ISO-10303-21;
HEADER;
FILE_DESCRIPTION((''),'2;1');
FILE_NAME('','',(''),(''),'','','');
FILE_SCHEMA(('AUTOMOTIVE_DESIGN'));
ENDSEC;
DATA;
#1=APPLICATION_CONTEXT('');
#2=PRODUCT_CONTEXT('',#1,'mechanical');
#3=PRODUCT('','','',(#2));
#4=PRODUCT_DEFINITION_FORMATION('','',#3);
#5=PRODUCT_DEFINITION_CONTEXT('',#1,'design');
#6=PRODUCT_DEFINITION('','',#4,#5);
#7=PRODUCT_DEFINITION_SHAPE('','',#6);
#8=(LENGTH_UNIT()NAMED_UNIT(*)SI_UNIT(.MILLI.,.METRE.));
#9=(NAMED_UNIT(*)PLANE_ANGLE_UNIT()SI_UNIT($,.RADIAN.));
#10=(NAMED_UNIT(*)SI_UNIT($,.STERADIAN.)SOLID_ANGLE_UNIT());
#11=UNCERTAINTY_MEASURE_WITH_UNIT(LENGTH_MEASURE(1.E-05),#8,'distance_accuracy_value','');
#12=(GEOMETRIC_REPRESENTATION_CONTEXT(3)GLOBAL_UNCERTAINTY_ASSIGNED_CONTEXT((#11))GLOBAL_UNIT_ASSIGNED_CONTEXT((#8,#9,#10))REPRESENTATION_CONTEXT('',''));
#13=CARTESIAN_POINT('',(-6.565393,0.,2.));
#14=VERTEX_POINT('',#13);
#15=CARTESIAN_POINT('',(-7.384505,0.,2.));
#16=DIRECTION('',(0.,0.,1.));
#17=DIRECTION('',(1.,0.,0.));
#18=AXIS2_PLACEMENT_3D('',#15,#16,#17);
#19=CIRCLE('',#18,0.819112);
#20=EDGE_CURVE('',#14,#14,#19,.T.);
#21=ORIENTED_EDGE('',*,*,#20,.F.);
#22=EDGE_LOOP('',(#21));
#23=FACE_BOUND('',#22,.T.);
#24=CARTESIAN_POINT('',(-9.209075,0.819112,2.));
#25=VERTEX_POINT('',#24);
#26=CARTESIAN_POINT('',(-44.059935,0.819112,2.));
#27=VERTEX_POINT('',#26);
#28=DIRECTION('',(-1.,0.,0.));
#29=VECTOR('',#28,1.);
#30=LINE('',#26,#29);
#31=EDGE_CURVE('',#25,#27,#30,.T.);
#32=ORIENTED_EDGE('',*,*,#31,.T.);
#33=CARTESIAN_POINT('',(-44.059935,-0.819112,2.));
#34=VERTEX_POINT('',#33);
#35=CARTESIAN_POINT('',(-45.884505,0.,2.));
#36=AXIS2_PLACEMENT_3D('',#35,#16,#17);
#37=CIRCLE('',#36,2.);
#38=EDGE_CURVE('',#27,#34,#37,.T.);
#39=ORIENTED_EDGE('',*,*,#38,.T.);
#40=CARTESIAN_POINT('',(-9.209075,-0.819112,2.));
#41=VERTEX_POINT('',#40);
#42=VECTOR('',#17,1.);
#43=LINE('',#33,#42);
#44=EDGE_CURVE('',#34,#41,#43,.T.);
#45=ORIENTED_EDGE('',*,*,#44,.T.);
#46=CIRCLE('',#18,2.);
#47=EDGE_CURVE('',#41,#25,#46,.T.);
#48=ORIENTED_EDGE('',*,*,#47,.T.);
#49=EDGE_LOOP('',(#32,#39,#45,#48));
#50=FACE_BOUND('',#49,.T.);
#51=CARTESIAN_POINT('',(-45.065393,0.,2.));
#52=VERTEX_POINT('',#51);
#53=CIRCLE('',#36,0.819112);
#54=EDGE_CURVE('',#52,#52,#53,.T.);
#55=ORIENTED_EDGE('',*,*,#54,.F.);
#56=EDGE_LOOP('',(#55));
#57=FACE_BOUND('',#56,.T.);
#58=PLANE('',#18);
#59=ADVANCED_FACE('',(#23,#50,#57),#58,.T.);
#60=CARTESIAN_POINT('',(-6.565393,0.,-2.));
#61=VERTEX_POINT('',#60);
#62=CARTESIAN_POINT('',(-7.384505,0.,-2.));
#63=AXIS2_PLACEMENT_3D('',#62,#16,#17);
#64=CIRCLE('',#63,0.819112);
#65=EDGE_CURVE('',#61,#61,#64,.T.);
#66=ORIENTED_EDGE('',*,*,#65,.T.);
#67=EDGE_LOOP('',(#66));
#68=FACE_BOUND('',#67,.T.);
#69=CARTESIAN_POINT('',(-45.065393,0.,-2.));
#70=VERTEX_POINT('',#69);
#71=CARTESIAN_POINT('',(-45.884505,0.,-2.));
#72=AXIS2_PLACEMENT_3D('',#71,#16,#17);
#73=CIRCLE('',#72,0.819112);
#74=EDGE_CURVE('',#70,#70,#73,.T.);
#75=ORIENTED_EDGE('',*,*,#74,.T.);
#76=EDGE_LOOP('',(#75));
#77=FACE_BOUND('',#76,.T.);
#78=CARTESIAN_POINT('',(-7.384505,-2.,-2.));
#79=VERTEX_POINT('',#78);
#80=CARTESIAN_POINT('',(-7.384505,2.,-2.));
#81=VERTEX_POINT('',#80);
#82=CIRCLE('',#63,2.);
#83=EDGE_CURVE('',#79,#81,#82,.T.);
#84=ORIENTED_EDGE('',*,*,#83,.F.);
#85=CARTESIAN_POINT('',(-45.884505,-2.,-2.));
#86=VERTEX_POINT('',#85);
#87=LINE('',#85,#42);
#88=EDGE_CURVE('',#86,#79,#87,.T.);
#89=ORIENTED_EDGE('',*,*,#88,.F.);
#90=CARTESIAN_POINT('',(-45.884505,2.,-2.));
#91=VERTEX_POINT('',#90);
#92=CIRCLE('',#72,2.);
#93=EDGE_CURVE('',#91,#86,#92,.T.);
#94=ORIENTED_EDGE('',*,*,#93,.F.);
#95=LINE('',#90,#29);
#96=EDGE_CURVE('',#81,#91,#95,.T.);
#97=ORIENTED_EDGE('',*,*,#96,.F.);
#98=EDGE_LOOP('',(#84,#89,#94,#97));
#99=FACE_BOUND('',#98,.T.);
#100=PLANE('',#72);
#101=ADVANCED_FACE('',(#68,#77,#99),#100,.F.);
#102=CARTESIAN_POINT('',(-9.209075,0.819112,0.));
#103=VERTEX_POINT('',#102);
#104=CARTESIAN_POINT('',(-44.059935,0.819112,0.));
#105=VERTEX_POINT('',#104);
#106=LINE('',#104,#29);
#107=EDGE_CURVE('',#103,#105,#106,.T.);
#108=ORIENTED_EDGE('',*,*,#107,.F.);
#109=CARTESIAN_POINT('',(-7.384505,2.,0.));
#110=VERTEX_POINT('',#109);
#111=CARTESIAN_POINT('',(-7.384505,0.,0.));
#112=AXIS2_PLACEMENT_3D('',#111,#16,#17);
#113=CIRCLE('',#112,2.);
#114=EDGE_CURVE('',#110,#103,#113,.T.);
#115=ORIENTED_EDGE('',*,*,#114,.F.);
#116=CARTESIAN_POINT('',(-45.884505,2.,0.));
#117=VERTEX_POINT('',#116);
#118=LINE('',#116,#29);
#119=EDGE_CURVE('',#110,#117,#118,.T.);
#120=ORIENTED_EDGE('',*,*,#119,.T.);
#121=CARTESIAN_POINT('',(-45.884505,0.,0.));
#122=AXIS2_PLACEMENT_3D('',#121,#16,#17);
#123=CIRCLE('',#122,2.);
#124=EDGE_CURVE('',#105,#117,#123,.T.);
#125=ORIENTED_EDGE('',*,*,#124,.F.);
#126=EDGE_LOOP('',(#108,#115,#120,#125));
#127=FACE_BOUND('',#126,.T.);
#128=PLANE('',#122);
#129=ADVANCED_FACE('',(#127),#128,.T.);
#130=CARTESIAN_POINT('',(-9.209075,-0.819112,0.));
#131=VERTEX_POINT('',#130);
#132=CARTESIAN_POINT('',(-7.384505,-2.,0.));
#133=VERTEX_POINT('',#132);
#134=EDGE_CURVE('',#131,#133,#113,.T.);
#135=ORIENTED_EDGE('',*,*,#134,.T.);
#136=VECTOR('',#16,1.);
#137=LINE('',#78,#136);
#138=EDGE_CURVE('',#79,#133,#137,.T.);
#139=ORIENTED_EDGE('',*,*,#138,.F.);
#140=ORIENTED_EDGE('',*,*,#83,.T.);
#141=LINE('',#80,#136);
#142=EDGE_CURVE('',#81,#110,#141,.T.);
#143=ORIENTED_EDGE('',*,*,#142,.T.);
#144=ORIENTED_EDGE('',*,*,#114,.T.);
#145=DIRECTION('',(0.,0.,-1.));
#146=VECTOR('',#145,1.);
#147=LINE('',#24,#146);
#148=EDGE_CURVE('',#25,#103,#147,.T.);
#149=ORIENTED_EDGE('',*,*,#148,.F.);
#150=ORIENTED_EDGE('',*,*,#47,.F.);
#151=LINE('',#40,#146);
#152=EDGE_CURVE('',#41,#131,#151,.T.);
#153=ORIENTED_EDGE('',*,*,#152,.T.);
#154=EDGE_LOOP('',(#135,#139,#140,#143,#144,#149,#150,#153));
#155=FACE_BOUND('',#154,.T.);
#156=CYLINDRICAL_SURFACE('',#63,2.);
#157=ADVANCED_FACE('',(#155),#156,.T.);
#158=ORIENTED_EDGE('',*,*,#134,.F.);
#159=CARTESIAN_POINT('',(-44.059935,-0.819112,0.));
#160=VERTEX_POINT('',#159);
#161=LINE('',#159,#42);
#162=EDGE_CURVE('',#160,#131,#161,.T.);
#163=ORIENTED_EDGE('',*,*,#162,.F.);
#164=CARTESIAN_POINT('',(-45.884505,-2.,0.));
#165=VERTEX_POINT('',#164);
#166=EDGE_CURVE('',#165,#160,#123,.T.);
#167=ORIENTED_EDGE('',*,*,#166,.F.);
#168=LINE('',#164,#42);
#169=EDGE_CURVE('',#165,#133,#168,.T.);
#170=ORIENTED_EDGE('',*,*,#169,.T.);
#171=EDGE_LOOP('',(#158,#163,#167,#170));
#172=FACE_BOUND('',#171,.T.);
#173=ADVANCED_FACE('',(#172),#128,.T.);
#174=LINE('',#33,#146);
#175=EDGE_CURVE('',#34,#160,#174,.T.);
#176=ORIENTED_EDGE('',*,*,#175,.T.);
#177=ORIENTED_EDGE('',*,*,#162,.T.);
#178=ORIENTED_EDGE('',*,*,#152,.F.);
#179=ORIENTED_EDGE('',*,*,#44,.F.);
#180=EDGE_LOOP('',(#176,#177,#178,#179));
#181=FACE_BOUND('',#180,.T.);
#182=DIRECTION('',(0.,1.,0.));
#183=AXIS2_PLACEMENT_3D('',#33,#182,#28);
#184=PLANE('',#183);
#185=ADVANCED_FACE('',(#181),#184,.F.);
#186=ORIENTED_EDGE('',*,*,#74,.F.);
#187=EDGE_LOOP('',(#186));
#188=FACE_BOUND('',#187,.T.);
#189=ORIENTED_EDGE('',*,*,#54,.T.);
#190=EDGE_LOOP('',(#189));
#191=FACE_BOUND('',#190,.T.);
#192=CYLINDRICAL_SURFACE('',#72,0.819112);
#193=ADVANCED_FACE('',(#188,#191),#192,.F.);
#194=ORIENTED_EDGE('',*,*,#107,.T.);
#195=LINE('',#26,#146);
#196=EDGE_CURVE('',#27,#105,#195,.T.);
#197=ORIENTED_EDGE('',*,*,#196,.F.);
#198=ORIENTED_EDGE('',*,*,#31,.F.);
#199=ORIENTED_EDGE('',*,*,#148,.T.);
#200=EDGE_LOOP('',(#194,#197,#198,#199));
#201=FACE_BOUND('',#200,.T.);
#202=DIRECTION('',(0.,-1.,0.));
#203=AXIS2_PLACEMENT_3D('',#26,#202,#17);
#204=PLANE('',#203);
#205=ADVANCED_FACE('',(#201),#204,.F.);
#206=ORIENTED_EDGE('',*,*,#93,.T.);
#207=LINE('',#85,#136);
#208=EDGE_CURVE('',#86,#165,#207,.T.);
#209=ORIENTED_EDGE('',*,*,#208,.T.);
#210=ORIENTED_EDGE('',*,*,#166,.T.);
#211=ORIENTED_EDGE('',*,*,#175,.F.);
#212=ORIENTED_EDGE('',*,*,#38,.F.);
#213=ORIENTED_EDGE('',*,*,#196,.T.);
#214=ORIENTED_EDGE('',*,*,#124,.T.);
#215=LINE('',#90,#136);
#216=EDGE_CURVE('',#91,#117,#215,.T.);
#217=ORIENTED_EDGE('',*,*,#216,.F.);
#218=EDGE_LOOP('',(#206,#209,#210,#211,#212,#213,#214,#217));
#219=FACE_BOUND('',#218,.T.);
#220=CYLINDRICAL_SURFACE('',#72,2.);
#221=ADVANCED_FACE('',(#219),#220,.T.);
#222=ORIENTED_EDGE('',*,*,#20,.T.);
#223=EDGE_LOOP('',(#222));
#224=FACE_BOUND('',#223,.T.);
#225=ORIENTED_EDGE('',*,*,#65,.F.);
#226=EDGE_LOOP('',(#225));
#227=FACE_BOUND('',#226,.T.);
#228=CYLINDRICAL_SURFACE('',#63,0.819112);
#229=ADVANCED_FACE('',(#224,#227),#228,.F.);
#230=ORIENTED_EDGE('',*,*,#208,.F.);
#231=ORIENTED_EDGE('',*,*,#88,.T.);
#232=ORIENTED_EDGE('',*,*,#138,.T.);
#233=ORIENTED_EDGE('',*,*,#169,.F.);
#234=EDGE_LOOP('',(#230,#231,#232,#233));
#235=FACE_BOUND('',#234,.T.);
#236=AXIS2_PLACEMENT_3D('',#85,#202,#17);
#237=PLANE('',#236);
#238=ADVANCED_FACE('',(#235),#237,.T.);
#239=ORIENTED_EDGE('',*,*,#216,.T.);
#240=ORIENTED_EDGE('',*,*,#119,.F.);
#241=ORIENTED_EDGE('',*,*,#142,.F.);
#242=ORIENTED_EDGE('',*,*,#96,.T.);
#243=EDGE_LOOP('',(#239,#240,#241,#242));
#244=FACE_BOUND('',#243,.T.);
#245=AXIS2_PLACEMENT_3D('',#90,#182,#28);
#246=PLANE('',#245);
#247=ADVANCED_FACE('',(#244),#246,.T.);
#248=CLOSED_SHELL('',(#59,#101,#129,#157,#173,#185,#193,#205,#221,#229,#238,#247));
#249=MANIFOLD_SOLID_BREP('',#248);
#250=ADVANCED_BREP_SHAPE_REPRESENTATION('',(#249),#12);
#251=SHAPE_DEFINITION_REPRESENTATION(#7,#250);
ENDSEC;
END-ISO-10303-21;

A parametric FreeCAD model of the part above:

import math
import FreeCAD as App
import Part
import Sketcher
from FreeCAD import Vector
Q = App.Units.Quantity

doc = App.newDocument("Part")
body = doc.addObject("PartDesign::Body", "Body")

# Sketch on XY plane
sketch1 = doc.addObject("Sketcher::SketchObject", "Sketch")
body.addObject(sketch1)
sketch1.AttachmentSupport = (doc.XY_Plane, [""])
sketch1.MapMode = "FlatFace"
sketch1.addGeometry(Part.LineSegment(Vector(-7.4, 2, 0), Vector(-45.9, 2, 0)), False)
sketch1.addGeometry(Part.ArcOfCircle(Part.Circle(Vector(-45.9, 0, 0), Vector(0, 0, 1), 2), math.radians(90), math.radians(270)), False)
sketch1.addGeometry(Part.LineSegment(Vector(-45.9, -2, 0), Vector(-7.4, -2, 0)), False)
sketch1.addGeometry(Part.ArcOfCircle(Part.Circle(Vector(-7.4, 0, 0), Vector(0, 0, 1), 2), math.radians(-90), math.radians(90)), False)
sketch1.addGeometry(Part.Circle(Vector(-7.4, 0, 0), Vector(0, 0, 1), 0.8), False)
sketch1.addGeometry(Part.Circle(Vector(-45.9, 0, 0), Vector(0, 0, 1), 0.8), False)
sketch1.addConstraint(Sketcher.Constraint("Tangent", 0, 2, 1, 1))
sketch1.addConstraint(Sketcher.Constraint("Tangent", 1, 2, 2, 1))
sketch1.addConstraint(Sketcher.Constraint("Tangent", 2, 2, 3, 1))
sketch1.addConstraint(Sketcher.Constraint("Tangent", 3, 2, 0, 1))
sketch1.addConstraint(Sketcher.Constraint("Horizontal", 0))
sketch1.addConstraint(Sketcher.Constraint("Horizontal", 2))
sketch1.addConstraint(Sketcher.Constraint("Coincident", 4, 3, 3, 3))
sketch1.addConstraint(Sketcher.Constraint("Coincident", 5, 3, 1, 3))
sketch1.addConstraint(Sketcher.Constraint("Equal", 4, 5))
sketch1.addConstraint(Sketcher.Constraint("PointOnObject", 1, 3, -1))
sketch1.addConstraint(Sketcher.Constraint("Radius", 1, Q("2 mm")))
sketch1.addConstraint(Sketcher.Constraint("DistanceX", 0, 2, 0, 1, Q("38.5 mm")))
sketch1.addConstraint(Sketcher.Constraint("Diameter", 4, Q("1.638224 mm")))
sketch1.addConstraint(Sketcher.Constraint("DistanceX", 1, 3, -1, 1, Q("45.884505 mm")))
pad1 = doc.addObject("PartDesign::Pad", "Pad")
body.addObject(pad1)
pad1.Profile = sketch1
pad1.Length = 2
pad1.Reversed = True

# Sketch on XY plane
sketch2 = doc.addObject("Sketcher::SketchObject", "Sketch001")
body.addObject(sketch2)
sketch2.AttachmentSupport = (doc.XY_Plane, [""])
sketch2.MapMode = "FlatFace"
sketch2.AttachmentOffset = App.Placement(Vector(0, 0, 2), App.Rotation())
sketch2.addGeometry(Part.LineSegment(Vector(-9.2, 0.8, 0), Vector(-44.1, 0.8, 0)), False)
sketch2.addGeometry(Part.ArcOfCircle(Part.Circle(Vector(-45.9, 0, 0), Vector(0, 0, 1), 2), math.radians(24), math.radians(336)), False)
sketch2.addGeometry(Part.LineSegment(Vector(-44.1, -0.8, 0), Vector(-9.2, -0.8, 0)), False)
sketch2.addGeometry(Part.ArcOfCircle(Part.Circle(Vector(-7.4, 0, 0), Vector(0, 0, 1), 2), math.radians(-156), math.radians(156)), False)
sketch2.addGeometry(Part.Circle(Vector(-7.4, 0, 0), Vector(0, 0, 1), 0.8), False)
sketch2.addGeometry(Part.Circle(Vector(-45.9, 0, 0), Vector(0, 0, 1), 0.8), False)
sketch2.addConstraint(Sketcher.Constraint("Coincident", 0, 2, 1, 1))
sketch2.addConstraint(Sketcher.Constraint("Coincident", 1, 2, 2, 1))
sketch2.addConstraint(Sketcher.Constraint("Coincident", 2, 2, 3, 1))
sketch2.addConstraint(Sketcher.Constraint("Coincident", 3, 2, 0, 1))
sketch2.addConstraint(Sketcher.Constraint("Horizontal", 0))
sketch2.addConstraint(Sketcher.Constraint("Horizontal", 2))
sketch2.addConstraint(Sketcher.Constraint("Coincident", 4, 3, 3, 3))
sketch2.addConstraint(Sketcher.Constraint("Coincident", 5, 3, 1, 3))
sketch2.addConstraint(Sketcher.Constraint("Equal", 1, 3))
sketch2.addConstraint(Sketcher.Constraint("Equal", 4, 5))
sketch2.addConstraint(Sketcher.Constraint("Symmetric", 0, 2, 1, 2, -1))
sketch2.addConstraint(Sketcher.Constraint("PointOnObject", 3, 3, -1))
sketch2.addConstraint(Sketcher.Constraint("Radius", 1, Q("2 mm")))
sketch2.addConstraint(Sketcher.Constraint("DistanceX", 1, 3, 3, 3, Q("38.5 mm")))
sketch2.addConstraint(Sketcher.Constraint("Diameter", 4, Q("1.638224 mm")))
sketch2.addConstraint(Sketcher.Constraint("DistanceX", 0, 2, 0, 1, Q("34.85086 mm")))
sketch2.addConstraint(Sketcher.Constraint("DistanceX", 1, 3, -1, 1, Q("45.884505 mm")))
pad2 = doc.addObject("PartDesign::Pad", "Pad001")
body.addObject(pad2)
pad2.Profile = sketch2
pad2.Length = 2
pad2.Reversed = True

doc.recompute()
